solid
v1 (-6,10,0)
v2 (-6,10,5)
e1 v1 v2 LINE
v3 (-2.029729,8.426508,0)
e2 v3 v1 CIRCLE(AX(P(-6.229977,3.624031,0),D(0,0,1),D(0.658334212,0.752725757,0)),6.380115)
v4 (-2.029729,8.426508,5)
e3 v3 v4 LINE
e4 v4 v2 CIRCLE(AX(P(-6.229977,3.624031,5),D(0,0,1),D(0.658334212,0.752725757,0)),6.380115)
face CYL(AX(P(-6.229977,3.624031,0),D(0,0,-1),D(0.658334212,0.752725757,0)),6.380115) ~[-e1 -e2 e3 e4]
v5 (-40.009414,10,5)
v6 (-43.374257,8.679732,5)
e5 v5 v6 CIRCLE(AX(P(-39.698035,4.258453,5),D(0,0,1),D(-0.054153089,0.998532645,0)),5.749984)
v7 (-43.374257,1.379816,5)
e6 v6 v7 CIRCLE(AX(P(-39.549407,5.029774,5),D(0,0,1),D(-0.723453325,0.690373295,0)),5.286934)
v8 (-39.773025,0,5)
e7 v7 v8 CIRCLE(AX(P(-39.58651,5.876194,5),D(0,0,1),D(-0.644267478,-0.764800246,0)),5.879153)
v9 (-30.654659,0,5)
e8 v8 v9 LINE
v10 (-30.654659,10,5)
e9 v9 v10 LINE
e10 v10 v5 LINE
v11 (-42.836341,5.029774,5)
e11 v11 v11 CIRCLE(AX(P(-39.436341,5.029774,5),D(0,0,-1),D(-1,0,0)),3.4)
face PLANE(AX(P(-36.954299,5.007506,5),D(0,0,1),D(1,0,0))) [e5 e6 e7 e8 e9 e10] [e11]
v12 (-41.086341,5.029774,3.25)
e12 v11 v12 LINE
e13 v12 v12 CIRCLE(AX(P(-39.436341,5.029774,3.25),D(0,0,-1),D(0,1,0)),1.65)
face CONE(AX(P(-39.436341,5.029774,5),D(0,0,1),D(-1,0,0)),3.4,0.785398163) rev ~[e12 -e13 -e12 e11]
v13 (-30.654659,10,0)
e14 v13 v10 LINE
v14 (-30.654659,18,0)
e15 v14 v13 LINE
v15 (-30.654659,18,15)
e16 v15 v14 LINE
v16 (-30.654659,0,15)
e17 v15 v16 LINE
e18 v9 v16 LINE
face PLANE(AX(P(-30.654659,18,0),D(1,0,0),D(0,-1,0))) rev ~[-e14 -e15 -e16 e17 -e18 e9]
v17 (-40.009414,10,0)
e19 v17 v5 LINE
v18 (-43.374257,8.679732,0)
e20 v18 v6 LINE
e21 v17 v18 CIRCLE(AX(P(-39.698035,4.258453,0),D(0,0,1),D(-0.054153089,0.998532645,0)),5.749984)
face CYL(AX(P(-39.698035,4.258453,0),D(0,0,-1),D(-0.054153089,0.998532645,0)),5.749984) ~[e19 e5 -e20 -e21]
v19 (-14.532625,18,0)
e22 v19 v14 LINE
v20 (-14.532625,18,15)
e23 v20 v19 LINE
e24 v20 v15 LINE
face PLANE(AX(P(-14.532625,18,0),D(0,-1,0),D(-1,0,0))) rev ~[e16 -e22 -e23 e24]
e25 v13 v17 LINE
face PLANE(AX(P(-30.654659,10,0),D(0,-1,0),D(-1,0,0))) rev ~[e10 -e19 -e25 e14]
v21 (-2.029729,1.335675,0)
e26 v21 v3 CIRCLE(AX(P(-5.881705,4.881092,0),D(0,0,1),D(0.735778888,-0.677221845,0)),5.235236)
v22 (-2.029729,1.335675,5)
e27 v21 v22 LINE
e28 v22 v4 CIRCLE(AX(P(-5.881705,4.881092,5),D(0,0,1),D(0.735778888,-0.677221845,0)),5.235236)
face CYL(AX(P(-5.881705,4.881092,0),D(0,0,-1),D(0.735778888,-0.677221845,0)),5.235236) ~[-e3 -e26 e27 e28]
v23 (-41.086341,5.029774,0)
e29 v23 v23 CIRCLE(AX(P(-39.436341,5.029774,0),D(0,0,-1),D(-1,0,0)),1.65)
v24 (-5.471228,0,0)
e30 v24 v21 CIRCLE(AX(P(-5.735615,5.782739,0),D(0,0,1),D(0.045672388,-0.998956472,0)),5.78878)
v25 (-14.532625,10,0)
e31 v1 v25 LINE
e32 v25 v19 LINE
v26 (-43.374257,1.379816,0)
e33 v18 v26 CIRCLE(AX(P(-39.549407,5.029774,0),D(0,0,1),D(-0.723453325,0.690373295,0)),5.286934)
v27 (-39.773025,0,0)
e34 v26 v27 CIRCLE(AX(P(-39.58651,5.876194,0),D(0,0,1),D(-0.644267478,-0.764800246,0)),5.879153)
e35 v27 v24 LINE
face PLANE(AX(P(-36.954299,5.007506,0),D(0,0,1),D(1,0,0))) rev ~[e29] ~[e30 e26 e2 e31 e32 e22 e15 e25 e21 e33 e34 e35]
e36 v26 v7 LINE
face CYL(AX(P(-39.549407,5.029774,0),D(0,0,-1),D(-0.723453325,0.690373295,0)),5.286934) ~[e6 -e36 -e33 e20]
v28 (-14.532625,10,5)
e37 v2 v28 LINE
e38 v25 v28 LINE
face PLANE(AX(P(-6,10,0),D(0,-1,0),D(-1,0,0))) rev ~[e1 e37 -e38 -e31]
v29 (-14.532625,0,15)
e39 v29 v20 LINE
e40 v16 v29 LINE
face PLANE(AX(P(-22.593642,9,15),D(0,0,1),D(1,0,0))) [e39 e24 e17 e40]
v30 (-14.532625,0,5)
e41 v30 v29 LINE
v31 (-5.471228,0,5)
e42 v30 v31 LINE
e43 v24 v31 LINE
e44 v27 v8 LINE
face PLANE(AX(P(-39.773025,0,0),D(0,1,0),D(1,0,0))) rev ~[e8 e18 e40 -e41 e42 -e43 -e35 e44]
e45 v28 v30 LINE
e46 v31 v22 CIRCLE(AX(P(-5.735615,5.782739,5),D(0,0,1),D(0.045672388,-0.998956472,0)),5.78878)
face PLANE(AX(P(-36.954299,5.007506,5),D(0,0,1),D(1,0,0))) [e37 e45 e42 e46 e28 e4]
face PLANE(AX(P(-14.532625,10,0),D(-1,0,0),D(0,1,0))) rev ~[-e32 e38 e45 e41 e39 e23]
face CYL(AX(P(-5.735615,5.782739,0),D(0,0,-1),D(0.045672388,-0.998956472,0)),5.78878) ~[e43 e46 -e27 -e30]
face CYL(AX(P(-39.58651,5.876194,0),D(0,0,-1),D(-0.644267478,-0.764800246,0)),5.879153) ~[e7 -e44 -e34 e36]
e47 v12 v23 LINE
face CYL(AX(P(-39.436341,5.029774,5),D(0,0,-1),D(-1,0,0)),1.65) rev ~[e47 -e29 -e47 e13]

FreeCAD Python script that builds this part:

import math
import FreeCAD as App
import Part
import Sketcher
Q = App.Units.Quantity


def add_polygon(sketch, points):
    """Adds a closed chain of lines whose ends are joined by coincident constraints."""
    first, n = sketch.GeometryCount, len(points)
    for a, b in zip(points, points[1:] + points[:1]):
        sketch.addGeometry(Part.LineSegment(App.Vector(*a, 0), App.Vector(*b, 0)), False)
    for i in range(n):
        sketch.addConstraint(Sketcher.Constraint("Coincident", first + i, 2, first + (i + 1) % n, 1))

doc = App.newDocument("Part")
params = doc.addObject("Spreadsheet::Sheet", "Params")
for row, (alias, value) in enumerate([
    ("sketch1_height", "8 mm"),
    ("pad1_length", "5 mm"),
    ("sketch2_height", "18 mm"),
    ("pad2_length", "15 mm"),
    ("sketch3_diameter", "3.3 mm"),
    ("hole_diameter", "3.3 mm"),
    ("hole_csink_diameter", "6.8 mm"),
], start=1):
    params.set(f"A{row}", alias)
    params.set(f"B{row}", "=" + value)
    params.setAlias(f"B{row}", alias)

body = doc.addObject("PartDesign::Body", "Body")

# Sketch on XY plane
sketch1 = body.newObject("Sketcher::SketchObject", "Sketch")
sketch1.AttachmentSupport = (doc.getObject("XY_Plane"), [""])
sketch1.MapMode = "FlatFace"
sketch1.addGeometry([
    Part.LineSegment(App.Vector(-39.8, 0, 0), App.Vector(-5.5, 0, 0)),  # 0
    Part.ArcOfCircle(Part.Circle(App.Vector(-5.7, 5.8, 0), App.Vector(0, 0, 1), 5.8), math.radians(-87), math.radians(-50)),  # 1
    Part.ArcOfCircle(Part.Circle(App.Vector(-5.9, 4.9, 0), App.Vector(0, 0, 1), 5.2), math.radians(-43), math.radians(43)),  # 2
    Part.ArcOfCircle(Part.Circle(App.Vector(-6.2, 3.6, 0), App.Vector(0, 0, 1), 6.4), math.radians(49), math.radians(88)),  # 3
    Part.LineSegment(App.Vector(-6, 10, 0), App.Vector(-14.5, 10, 0)),  # 4
    Part.LineSegment(App.Vector(-14.5, 10, 0), App.Vector(-14.5, 18, 0)),  # 5
    Part.LineSegment(App.Vector(-14.5, 18, 0), App.Vector(-30.7, 18, 0)),  # 6
    Part.LineSegment(App.Vector(-30.7, 18, 0), App.Vector(-30.7, 10, 0)),  # 7
    Part.LineSegment(App.Vector(-30.7, 10, 0), App.Vector(-40, 10, 0)),  # 8
    Part.ArcOfCircle(Part.Circle(App.Vector(-39.7, 4.3, 0), App.Vector(0, 0, 1), 5.7), math.radians(93), math.radians(130)),  # 9
    Part.ArcOfCircle(Part.Circle(App.Vector(-39.5, 5, 0), App.Vector(0, 0, 1), 5.3), math.radians(136), math.radians(224)),  # 10
    Part.ArcOfCircle(Part.Circle(App.Vector(-39.6, 5.9, 0), App.Vector(0, 0, 1), 5.9), math.radians(-130), math.radians(-92)),  # 11
], False)
sketch1.addConstraint([
    Sketcher.Constraint("Coincident", 0, 2, 1, 1),
    Sketcher.Constraint("Coincident", 1, 2, 2, 1),
    Sketcher.Constraint("Coincident", 2, 2, 3, 1),
    Sketcher.Constraint("Coincident", 3, 2, 4, 1),
    Sketcher.Constraint("Coincident", 4, 2, 5, 1),
    Sketcher.Constraint("Coincident", 5, 2, 6, 1),
    Sketcher.Constraint("Coincident", 6, 2, 7, 1),
    Sketcher.Constraint("Coincident", 7, 2, 8, 1),
    Sketcher.Constraint("Coincident", 8, 2, 9, 1),
    Sketcher.Constraint("Coincident", 9, 2, 10, 1),
    Sketcher.Constraint("Coincident", 10, 2, 11, 1),
    Sketcher.Constraint("Coincident", 11, 2, 0, 1),
    Sketcher.Constraint("Horizontal", 0),
    Sketcher.Constraint("Horizontal", 4),
    Sketcher.Constraint("Vertical", 5),
    Sketcher.Constraint("Horizontal", 6),
    Sketcher.Constraint("Vertical", 7),
    Sketcher.Constraint("Horizontal", 8),
    Sketcher.Constraint("PointOnObject", 0, 2, -1),
    Sketcher.Constraint("Horizontal", 4, 2, 7, 2),
    Sketcher.Constraint("Vertical", 1, 2, 2, 2),
    Sketcher.Constraint("Vertical", 9, 2, 10, 2),
    Sketcher.Constraint("DistanceY", 5, 1, 5, 2, Q("8 mm")),
    Sketcher.Constraint("DistanceX", 3, 2, -1, 1, Q("6 mm")),
    Sketcher.Constraint("DistanceY", -1, 1, 3, 2, Q("10 mm")),
    Sketcher.Constraint("Radius", 1, Q("5.78878 mm")),
    Sketcher.Constraint("Radius", 2, Q("5.235236 mm")),
    Sketcher.Constraint("Radius", 3, Q("6.380115 mm")),
    Sketcher.Constraint("Radius", 9, Q("5.749984 mm")),
    Sketcher.Constraint("Radius", 10, Q("5.286934 mm")),
    Sketcher.Constraint("Radius", 11, Q("5.879153 mm")),
    Sketcher.Constraint("DistanceX", 10, 3, 2, 3, Q("33.667702 mm")),
    Sketcher.Constraint("DistanceX", 0, 2, 1, 2, Q("3.441499 mm")),
    Sketcher.Constraint("DistanceY", 1, 2, 10, 3, Q("3.694099 mm")),
    Sketcher.Constraint("DistanceX", 9, 2, 7, 2, Q("12.719598 mm")),
    Sketcher.Constraint("DistanceX", 0, 1, 0, 2, Q("34.301797 mm")),
    Sketcher.Constraint("DistanceX", 4, 2, 4, 1, Q("8.532625 mm")),
    Sketcher.Constraint("DistanceX", 6, 2, 6, 1, Q("16.122034 mm")),
    Sketcher.Constraint("DistanceX", 8, 2, 8, 1, Q("9.354755 mm")),
    Sketcher.Constraint("DistanceY", -1, 1, 1, 3, Q("5.782739 mm")),
    Sketcher.Constraint("DistanceY", -1, 1, 2, 3, Q("4.881092 mm")),
    Sketcher.Constraint("DistanceY", -1, 1, 3, 3, Q("3.624031 mm")),
])
sketch1.setExpression("Constraints[22]", "Params.sketch1_height")
pad1 = body.newObject("PartDesign::Pad", "Pad")
pad1.Profile = sketch1
pad1.setExpression("Length", "Params.pad1_length")

# Sketch on XY plane
sketch2 = body.newObject("Sketcher::SketchObject", "Sketch001")
sketch2.AttachmentSupport = (doc.getObject("XY_Plane"), [""])
sketch2.MapMode = "FlatFace"
add_polygon(sketch2, [(-31, 0), (-15, 0), (-15, 18), (-31, 18)])  # lines 0-3
sketch2.addConstraint([
    Sketcher.Constraint("Horizontal", 0),
    Sketcher.Constraint("Vertical", 1),
    Sketcher.Constraint("Horizontal", 2),
    Sketcher.Constraint("Vertical", 3),
    Sketcher.Constraint("PointOnObject", 0, 2, -1),
    Sketcher.Constraint("DistanceY", 1, 1, 1, 2, Q("18 mm")),
    Sketcher.Constraint("DistanceX", 0, 1, 0, 2, Q("16.122034 mm")),
    Sketcher.Constraint("DistanceX", 2, 2, -1, 1, Q("30.654659 mm")),
])
sketch2.setExpression("Constraints[9]", "Params.sketch2_height")
pad2 = body.newObject("PartDesign::Pad", "Pad001")
pad2.Profile = sketch2
pad2.setExpression("Length", "Params.pad2_length")

# Sketch on XY plane
sketch3 = body.newObject("Sketcher::SketchObject", "Sketch002")
sketch3.AttachmentSupport = (doc.getObject("XY_Plane"), [""])
sketch3.MapMode = "FlatFace"
sketch3.AttachmentOffset = App.Placement(App.Vector(0, 0, 5), App.Rotation())
sketch3.addGeometry(Part.Circle(App.Vector(-39.4, 5, 0), App.Vector(0, 0, 1), 1.6), False)
sketch3.addConstraint([
    Sketcher.Constraint("Diameter", 0, Q("3.3 mm")),
    Sketcher.Constraint("DistanceX", 0, 3, -1, 1, Q("39.436341 mm")),
    Sketcher.Constraint("DistanceY", -1, 1, 0, 3, Q("5.029774 mm")),
])
sketch3.setExpression("Constraints[0]", "Params.sketch3_diameter")
doc.recompute()
hole = body.newObject("PartDesign::Hole", "Hole")
hole.Profile = sketch3
hole.ThreadType = "None"
hole.setExpression("Diameter", "Params.hole_diameter")
hole.DepthType = "ThroughAll"
hole.HoleCutType = "Countersink"
hole.setExpression("HoleCutDiameter", "Params.hole_csink_diameter")
hole.HoleCutCountersinkAngle = 90

doc.recompute()
